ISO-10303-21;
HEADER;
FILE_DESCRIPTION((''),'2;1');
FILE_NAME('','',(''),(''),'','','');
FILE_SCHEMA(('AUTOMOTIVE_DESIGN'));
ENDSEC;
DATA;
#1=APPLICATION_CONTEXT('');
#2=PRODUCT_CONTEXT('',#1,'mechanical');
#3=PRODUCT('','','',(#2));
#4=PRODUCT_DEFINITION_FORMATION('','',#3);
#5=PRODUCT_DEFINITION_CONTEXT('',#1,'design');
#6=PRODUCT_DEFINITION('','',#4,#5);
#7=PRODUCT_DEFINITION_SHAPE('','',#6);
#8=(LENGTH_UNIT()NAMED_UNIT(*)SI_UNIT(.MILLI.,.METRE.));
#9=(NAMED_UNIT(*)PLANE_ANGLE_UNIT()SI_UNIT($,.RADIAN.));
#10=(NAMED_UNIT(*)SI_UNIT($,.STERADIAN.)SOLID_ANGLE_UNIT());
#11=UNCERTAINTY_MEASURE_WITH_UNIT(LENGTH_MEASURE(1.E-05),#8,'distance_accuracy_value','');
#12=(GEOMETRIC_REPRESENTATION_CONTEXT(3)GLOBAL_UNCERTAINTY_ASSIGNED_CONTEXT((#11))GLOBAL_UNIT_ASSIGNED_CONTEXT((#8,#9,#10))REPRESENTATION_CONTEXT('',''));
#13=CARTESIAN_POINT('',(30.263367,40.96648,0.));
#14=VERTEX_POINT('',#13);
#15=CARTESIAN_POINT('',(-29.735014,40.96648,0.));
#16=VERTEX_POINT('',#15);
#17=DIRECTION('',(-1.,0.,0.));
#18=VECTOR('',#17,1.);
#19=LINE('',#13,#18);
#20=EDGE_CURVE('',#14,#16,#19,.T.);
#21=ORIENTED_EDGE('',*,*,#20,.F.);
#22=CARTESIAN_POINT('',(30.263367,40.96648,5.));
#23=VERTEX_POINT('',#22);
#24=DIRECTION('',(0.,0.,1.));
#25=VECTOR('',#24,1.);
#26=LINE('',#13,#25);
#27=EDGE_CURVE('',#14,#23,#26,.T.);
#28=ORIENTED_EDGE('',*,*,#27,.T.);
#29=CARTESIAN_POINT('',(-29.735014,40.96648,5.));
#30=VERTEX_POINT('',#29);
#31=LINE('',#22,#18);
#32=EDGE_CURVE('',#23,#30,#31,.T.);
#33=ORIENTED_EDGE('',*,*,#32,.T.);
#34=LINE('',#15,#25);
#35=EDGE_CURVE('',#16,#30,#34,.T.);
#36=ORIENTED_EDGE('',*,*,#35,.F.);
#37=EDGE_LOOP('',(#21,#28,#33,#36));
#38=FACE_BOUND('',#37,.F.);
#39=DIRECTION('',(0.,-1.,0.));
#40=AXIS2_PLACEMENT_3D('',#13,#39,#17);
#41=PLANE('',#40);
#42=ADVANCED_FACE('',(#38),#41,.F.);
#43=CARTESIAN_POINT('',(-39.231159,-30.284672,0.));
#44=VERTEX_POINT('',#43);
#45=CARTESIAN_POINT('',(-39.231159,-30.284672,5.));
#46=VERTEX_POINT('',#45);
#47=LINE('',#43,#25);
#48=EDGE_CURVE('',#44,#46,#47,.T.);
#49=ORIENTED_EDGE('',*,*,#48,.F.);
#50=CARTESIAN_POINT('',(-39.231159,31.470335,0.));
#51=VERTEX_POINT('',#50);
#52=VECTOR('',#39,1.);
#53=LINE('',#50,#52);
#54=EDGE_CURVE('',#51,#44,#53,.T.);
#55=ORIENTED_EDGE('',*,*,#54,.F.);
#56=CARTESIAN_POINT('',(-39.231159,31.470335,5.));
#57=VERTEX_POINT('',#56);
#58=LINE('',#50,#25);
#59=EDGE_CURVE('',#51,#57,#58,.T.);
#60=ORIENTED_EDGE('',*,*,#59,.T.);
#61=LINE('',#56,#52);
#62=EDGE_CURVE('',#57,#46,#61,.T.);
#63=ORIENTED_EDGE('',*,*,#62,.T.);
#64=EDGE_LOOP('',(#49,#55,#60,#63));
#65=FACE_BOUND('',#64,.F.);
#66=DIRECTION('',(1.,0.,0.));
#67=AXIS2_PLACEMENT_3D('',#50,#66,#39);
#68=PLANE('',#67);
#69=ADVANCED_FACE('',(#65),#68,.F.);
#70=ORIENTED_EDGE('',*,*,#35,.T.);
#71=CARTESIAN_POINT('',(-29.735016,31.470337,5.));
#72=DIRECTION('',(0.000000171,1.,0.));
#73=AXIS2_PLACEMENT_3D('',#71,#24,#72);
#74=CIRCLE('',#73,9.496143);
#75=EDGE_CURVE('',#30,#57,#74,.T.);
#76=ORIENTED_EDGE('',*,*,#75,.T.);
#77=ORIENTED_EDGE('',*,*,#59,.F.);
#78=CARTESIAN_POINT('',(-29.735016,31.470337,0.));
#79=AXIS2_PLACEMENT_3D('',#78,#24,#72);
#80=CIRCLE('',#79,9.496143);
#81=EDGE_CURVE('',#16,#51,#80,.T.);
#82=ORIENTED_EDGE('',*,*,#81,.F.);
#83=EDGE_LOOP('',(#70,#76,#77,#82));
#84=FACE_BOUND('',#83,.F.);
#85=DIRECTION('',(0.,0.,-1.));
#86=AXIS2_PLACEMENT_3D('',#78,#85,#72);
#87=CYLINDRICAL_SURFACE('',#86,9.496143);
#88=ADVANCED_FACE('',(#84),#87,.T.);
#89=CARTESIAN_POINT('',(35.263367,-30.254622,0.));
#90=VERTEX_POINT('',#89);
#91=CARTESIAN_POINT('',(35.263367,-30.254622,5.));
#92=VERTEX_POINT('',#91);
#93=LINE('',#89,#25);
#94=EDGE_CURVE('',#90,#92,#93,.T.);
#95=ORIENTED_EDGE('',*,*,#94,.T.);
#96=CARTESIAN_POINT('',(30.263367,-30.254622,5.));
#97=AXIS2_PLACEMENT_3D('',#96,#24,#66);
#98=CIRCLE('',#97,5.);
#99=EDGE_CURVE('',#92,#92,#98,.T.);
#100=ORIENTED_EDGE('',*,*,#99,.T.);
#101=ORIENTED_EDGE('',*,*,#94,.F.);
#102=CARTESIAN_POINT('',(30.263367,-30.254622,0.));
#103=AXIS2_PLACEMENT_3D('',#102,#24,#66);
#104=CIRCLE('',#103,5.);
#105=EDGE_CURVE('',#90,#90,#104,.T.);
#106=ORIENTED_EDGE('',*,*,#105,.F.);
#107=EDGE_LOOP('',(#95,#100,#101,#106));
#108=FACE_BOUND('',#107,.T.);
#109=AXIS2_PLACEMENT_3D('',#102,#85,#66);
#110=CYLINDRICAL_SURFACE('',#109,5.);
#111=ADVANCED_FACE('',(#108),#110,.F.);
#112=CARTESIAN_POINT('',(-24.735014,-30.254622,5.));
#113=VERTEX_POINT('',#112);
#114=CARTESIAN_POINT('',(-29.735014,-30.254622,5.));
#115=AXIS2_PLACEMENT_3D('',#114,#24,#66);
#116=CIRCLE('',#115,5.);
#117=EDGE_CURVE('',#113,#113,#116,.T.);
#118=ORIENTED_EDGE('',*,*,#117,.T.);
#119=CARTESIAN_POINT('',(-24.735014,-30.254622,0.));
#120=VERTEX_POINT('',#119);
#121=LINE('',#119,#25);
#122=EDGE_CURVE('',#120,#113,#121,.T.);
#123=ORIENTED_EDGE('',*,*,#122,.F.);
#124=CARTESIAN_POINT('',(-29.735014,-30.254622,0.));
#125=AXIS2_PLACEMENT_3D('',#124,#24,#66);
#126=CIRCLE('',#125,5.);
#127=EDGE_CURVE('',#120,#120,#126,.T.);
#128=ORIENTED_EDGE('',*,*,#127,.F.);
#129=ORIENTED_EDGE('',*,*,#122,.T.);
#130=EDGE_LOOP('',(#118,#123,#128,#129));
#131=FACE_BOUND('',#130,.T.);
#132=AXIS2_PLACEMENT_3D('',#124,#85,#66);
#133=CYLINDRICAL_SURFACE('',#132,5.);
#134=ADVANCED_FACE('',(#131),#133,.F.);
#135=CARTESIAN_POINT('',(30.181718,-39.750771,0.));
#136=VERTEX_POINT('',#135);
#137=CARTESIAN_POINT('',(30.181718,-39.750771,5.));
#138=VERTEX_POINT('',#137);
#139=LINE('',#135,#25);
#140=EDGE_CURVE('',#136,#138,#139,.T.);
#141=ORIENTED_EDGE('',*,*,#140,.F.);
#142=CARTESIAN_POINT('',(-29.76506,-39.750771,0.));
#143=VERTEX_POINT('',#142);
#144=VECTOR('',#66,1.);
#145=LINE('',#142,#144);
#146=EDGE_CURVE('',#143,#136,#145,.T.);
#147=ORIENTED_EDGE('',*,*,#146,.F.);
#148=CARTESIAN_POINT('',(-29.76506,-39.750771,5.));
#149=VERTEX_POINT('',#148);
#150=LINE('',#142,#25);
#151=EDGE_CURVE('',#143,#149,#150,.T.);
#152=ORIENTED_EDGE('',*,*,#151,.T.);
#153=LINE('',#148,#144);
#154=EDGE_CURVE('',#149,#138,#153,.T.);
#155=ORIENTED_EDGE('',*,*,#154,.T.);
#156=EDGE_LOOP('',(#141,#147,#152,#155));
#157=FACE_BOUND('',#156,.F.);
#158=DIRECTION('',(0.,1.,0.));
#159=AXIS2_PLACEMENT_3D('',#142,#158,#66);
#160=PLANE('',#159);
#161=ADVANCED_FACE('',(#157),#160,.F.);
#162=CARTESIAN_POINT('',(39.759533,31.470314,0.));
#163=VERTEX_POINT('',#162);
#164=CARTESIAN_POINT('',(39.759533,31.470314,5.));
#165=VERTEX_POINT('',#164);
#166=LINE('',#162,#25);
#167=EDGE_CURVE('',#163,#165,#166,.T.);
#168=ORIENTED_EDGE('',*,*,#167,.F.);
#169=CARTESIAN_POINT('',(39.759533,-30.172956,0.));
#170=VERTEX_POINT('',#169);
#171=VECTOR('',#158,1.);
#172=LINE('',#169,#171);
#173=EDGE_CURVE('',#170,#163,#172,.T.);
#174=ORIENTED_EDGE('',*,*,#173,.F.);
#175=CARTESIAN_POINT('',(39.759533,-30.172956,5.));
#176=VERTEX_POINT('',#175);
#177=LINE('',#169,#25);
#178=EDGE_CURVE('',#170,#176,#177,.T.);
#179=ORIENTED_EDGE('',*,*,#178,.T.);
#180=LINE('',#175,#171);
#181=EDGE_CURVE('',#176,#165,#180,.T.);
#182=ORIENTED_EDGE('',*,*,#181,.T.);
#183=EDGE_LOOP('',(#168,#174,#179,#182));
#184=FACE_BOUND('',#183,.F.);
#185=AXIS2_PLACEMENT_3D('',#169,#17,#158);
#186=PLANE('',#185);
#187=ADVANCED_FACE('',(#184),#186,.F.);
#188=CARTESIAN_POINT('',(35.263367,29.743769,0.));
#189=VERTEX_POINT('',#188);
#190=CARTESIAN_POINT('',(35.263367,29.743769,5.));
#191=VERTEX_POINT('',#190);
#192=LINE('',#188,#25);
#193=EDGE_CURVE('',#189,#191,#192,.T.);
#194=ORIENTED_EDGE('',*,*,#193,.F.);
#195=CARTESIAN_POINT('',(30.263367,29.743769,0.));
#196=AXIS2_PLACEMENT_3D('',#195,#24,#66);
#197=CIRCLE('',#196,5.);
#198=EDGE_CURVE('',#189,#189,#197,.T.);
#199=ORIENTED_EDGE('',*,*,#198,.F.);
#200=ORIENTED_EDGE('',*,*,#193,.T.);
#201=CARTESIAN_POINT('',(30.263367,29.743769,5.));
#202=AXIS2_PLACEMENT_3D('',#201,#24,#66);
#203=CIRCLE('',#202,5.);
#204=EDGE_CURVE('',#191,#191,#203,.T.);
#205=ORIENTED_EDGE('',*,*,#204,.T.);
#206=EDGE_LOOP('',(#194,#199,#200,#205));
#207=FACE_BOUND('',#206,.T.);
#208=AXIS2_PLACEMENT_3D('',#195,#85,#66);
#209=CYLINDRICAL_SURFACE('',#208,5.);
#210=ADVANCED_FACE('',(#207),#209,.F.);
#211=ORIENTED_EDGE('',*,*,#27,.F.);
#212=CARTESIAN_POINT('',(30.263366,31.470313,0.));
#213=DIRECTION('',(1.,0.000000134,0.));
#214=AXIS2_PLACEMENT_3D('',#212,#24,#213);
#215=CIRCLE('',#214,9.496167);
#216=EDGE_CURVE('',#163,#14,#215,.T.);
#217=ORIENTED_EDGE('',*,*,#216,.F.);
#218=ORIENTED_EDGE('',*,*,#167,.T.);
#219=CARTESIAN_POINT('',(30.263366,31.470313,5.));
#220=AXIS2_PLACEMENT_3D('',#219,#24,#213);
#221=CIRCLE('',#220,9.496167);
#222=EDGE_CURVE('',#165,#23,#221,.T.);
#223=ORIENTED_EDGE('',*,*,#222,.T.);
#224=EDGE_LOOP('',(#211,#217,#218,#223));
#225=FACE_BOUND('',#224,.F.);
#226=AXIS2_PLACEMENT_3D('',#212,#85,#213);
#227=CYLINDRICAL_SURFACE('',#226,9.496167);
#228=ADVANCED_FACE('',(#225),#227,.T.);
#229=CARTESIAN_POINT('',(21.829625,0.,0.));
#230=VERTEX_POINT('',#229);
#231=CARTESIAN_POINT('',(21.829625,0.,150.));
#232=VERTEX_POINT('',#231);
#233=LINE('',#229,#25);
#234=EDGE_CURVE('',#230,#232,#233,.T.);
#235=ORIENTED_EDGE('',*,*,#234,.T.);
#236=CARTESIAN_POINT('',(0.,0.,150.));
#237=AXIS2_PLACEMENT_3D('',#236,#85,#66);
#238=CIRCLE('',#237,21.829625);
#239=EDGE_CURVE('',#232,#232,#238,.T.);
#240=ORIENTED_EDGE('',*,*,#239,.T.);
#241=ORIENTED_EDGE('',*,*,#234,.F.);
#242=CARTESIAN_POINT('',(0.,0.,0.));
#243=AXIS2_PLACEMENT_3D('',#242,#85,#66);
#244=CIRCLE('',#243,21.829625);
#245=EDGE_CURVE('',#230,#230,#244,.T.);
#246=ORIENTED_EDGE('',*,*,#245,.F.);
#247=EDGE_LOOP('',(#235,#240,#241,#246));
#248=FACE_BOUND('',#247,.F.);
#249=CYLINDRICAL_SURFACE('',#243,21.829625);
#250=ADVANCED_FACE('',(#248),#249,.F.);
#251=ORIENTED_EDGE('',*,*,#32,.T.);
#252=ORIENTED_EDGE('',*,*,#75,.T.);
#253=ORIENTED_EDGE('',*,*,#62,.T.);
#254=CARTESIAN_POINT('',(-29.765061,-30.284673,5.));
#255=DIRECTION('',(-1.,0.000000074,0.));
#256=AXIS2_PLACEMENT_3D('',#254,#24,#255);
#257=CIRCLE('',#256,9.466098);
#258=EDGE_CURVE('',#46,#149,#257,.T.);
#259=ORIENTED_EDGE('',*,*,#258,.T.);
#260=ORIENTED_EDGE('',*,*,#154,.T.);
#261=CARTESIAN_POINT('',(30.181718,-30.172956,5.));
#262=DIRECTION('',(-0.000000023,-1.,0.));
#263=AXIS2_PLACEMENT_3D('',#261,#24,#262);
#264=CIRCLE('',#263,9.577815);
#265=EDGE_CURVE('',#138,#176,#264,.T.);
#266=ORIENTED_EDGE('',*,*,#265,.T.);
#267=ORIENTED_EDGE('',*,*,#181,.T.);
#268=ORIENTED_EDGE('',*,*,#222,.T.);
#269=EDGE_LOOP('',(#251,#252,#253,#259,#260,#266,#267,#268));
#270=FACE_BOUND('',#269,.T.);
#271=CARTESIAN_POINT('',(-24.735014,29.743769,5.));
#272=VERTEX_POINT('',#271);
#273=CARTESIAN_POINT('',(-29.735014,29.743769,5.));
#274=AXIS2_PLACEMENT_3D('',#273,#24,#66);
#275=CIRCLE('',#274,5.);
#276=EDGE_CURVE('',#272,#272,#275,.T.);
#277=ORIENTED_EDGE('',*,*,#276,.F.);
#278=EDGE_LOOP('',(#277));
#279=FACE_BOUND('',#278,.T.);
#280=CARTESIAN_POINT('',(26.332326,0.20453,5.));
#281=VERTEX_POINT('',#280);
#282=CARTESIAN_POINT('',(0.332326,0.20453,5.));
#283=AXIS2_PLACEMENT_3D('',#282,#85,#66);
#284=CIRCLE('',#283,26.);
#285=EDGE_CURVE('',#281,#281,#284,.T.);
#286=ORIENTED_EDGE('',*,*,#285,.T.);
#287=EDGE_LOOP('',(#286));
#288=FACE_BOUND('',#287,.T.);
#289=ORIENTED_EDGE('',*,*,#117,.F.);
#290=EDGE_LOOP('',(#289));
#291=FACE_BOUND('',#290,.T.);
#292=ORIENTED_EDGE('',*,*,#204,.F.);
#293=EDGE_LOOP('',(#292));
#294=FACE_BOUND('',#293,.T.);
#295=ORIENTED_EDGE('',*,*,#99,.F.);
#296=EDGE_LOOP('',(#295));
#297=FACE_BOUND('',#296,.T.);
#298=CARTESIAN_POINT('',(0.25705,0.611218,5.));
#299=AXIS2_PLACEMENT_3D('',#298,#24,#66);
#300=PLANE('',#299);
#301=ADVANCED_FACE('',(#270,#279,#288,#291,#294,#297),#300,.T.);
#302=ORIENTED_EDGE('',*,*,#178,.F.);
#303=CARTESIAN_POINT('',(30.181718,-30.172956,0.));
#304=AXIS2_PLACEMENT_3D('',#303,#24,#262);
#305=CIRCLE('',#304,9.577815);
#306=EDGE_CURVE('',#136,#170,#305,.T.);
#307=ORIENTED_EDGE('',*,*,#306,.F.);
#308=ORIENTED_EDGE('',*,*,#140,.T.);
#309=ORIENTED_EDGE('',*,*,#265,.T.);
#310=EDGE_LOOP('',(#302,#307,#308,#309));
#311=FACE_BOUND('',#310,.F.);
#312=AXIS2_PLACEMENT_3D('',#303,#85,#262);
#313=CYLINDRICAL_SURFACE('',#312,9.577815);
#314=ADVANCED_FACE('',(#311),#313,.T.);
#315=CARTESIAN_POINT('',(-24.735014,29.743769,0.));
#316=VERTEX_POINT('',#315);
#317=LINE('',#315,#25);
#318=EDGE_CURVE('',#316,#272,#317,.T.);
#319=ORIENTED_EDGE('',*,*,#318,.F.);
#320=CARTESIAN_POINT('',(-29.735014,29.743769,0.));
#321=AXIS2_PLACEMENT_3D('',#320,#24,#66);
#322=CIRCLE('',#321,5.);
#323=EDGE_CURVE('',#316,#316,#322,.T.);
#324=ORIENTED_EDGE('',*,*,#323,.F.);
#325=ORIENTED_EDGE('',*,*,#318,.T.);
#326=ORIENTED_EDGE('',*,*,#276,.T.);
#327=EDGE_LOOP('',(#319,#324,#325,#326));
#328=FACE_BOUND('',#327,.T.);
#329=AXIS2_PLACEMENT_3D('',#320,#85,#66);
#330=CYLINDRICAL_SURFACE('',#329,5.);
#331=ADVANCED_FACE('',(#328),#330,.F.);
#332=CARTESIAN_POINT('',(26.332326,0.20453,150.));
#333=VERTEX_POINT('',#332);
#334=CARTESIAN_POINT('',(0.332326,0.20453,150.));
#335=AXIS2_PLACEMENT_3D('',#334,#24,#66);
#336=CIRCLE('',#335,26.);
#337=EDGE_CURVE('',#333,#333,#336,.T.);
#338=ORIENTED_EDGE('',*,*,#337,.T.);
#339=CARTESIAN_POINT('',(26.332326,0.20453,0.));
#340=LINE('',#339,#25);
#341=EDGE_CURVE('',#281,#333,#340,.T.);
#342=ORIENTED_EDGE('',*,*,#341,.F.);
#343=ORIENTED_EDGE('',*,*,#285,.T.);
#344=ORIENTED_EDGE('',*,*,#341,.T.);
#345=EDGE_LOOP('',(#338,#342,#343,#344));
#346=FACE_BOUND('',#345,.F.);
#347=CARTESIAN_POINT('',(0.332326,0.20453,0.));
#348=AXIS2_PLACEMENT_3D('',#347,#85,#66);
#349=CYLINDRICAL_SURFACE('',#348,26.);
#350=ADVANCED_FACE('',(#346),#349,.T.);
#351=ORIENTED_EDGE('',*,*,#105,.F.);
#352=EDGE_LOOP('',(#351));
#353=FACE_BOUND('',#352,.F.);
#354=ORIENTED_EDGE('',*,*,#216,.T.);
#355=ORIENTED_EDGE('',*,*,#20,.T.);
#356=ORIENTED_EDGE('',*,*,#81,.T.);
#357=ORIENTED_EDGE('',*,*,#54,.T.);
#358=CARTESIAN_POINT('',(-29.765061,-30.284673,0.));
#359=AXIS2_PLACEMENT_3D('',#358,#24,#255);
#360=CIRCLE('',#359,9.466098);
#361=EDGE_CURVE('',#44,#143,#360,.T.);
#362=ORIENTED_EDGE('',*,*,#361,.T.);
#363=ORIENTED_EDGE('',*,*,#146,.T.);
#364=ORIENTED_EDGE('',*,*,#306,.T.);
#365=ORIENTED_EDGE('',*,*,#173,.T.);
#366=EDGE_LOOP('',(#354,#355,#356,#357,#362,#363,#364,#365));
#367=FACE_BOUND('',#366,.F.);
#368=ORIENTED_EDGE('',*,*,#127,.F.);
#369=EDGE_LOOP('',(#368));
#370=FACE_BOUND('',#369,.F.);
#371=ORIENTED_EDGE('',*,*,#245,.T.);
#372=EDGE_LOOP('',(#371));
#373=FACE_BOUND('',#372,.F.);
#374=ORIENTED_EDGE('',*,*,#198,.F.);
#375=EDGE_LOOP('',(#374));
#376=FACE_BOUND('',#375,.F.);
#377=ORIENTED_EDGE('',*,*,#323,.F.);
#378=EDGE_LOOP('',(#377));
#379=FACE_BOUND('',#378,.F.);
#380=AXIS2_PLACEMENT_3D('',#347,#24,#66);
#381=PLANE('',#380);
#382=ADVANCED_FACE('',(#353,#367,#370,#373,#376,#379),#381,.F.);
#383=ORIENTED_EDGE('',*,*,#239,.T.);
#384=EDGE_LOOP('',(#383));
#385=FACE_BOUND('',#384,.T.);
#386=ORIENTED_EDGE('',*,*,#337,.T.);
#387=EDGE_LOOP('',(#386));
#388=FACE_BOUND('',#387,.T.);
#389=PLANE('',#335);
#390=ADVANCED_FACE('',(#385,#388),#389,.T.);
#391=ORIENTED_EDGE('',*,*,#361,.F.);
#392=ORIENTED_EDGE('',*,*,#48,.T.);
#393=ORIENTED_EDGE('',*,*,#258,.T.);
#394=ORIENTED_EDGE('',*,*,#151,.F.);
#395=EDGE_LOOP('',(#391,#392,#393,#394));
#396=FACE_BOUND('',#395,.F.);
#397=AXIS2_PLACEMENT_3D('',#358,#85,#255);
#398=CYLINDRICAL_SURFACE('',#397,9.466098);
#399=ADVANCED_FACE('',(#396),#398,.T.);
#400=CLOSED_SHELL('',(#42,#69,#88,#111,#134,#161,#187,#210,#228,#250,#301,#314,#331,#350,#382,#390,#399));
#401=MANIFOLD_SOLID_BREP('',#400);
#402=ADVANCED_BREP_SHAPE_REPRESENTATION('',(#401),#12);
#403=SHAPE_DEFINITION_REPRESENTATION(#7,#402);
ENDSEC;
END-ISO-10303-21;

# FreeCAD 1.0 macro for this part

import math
import FreeCAD as App
import Part
import Sketcher

V = App.Vector
Q = App.Units.Quantity

doc = App.newDocument("Part")
body = doc.addObject("PartDesign::Body", "Body")

sketch1 = doc.addObject("Sketcher::SketchObject", "Sketch")
body.addObject(sketch1)
sketch1.AttachmentSupport = (doc.XY_Plane, [""])
sketch1.MapMode = "FlatFace"
sketch1.addGeometry(Part.LineSegment(V(-30, -40, 0), V(30, -40, 0)), False)
sketch1.addGeometry(Part.ArcOfCircle(Part.Circle(V(30, -30, 0), V(0, 0, 1), 10), math.radians(-90), math.radians(0)), False)
sketch1.addGeometry(Part.LineSegment(V(40, -30, 0), V(40, 31, 0)), False)
sketch1.addGeometry(Part.ArcOfCircle(Part.Circle(V(30, 31, 0), V(0, 0, 1), 9), math.radians(0), math.radians(90)), False)
sketch1.addGeometry(Part.LineSegment(V(30, 41, 0), V(-30, 41, 0)), False)
sketch1.addGeometry(Part.ArcOfCircle(Part.Circle(V(-30, 31, 0), V(0, 0, 1), 9), math.radians(90), math.radians(180)), False)
sketch1.addGeometry(Part.LineSegment(V(-39, 31, 0), V(-39, -30, 0)), False)
sketch1.addGeometry(Part.ArcOfCircle(Part.Circle(V(-30, -30, 0), V(0, 0, 1), 9), math.radians(180), math.radians(270)), False)
sketch1.addGeometry(Part.Circle(V(-30, -30, 0), V(0, 0, 1), 5), False)
sketch1.addGeometry(Part.Circle(V(30, -30, 0), V(0, 0, 1), 5), False)
sketch1.addGeometry(Part.Circle(V(-30, 30, 0), V(0, 0, 1), 5), False)
sketch1.addGeometry(Part.Circle(V(30, 30, 0), V(0, 0, 1), 5), False)
sketch1.addConstraint(Sketcher.Constraint("Tangent", 0, 2, 1, 1))
sketch1.addConstraint(Sketcher.Constraint("Tangent", 1, 2, 2, 1))
sketch1.addConstraint(Sketcher.Constraint("Tangent", 2, 2, 3, 1))
sketch1.addConstraint(Sketcher.Constraint("Tangent", 3, 2, 4, 1))
sketch1.addConstraint(Sketcher.Constraint("Tangent", 4, 2, 5, 1))
sketch1.addConstraint(Sketcher.Constraint("Tangent", 5, 2, 6, 1))
sketch1.addConstraint(Sketcher.Constraint("Tangent", 6, 2, 7, 1))
sketch1.addConstraint(Sketcher.Constraint("Tangent", 7, 2, 0, 1))
sketch1.addConstraint(Sketcher.Constraint("Horizontal", 0))
sketch1.addConstraint(Sketcher.Constraint("Vertical", 2))
sketch1.addConstraint(Sketcher.Constraint("Horizontal", 4))
sketch1.addConstraint(Sketcher.Constraint("Vertical", 6))
sketch1.addConstraint(Sketcher.Constraint("Equal", 8, 9))
sketch1.addConstraint(Sketcher.Constraint("Equal", 9, 10))
sketch1.addConstraint(Sketcher.Constraint("Equal", 10, 11))
sketch1.addConstraint(Sketcher.Constraint("Horizontal", 8, 3, 9, 3))
sketch1.addConstraint(Sketcher.Constraint("Horizontal", 10, 3, 11, 3))
sketch1.addConstraint(Sketcher.Constraint("Vertical", 5, 3, 8, 3))
sketch1.addConstraint(Sketcher.Constraint("Vertical", 3, 3, 9, 3))
sketch1.addConstraint(Sketcher.Constraint("Vertical", 8, 3, 10, 3))
sketch1.addConstraint(Sketcher.Constraint("Vertical", 9, 3, 11, 3))
sketch1.addConstraint(Sketcher.Constraint("Diameter", 8, Q("10 mm")))
sketch1.addConstraint(Sketcher.Constraint("Radius", 7, Q("9.466098 mm")))
sketch1.addConstraint(Sketcher.Constraint("Radius", 1, Q("9.577815 mm")))
sketch1.addConstraint(Sketcher.Constraint("Radius", 3, Q("9.496167 mm")))
sketch1.addConstraint(Sketcher.Constraint("Radius", 5, Q("9.496143 mm")))
sketch1.addConstraint(Sketcher.Constraint("DistanceX", 4, 2, 4, 1, Q("59.998381 mm")))
sketch1.addConstraint(Sketcher.Constraint("DistanceY", 2, 1, 2, 2, Q("61.64327 mm")))
sketch1.addConstraint(Sketcher.Constraint("DistanceX", -1, 1, 1, 3, Q("30.181718 mm")))
sketch1.addConstraint(Sketcher.Constraint("DistanceY", -1, 1, 10, 3, Q("29.743769 mm")))
sketch1.addConstraint(Sketcher.Constraint("DistanceY", 0, 2, -1, 1, Q("39.750771 mm")))
sketch1.addConstraint(Sketcher.Constraint("DistanceY", 7, 3, 8, 3, Q("0.030051 mm")))
pad1 = doc.addObject("PartDesign::Pad", "Pad")
body.addObject(pad1)
pad1.Profile = sketch1
pad1.Length = 5

sketch2 = doc.addObject("Sketcher::SketchObject", "Sketch001")
body.addObject(sketch2)
sketch2.AttachmentSupport = (doc.XY_Plane, [""])
sketch2.MapMode = "FlatFace"
sketch2.addGeometry(Part.Circle(V(0, 0, 0), V(0, 0, 1), 26), False)
sketch2.addConstraint(Sketcher.Constraint("Diameter", 0, Q("52 mm")))
sketch2.addConstraint(Sketcher.Constraint("DistanceY", -1, 1, 0, 3, Q("0.20453 mm")))
sketch2.addConstraint(Sketcher.Constraint("DistanceX", -1, 1, 0, 3, Q("0.332326 mm")))
pad2 = doc.addObject("PartDesign::Pad", "Pad001")
body.addObject(pad2)
pad2.Profile = sketch2
pad2.Length = 150

sketch3 = doc.addObject("Sketcher::SketchObject", "Sketch002")
body.addObject(sketch3)
sketch3.AttachmentSupport = (doc.XY_Plane, [""])
sketch3.MapMode = "FlatFace"
sketch3.addGeometry(Part.Circle(V(0, 0, 0), V(0, 0, 1), 22), False)
sketch3.addConstraint(Sketcher.Constraint("Coincident", 0, 3, -1, 1))
sketch3.addConstraint(Sketcher.Constraint("Diameter", 0, Q("43.65925 mm")))
pocket1 = doc.addObject("PartDesign::Pocket", "Pocket")
body.addObject(pocket1)
pocket1.Profile = sketch3
pocket1.Length = 150
pocket1.Reversed = True

doc.recompute()
